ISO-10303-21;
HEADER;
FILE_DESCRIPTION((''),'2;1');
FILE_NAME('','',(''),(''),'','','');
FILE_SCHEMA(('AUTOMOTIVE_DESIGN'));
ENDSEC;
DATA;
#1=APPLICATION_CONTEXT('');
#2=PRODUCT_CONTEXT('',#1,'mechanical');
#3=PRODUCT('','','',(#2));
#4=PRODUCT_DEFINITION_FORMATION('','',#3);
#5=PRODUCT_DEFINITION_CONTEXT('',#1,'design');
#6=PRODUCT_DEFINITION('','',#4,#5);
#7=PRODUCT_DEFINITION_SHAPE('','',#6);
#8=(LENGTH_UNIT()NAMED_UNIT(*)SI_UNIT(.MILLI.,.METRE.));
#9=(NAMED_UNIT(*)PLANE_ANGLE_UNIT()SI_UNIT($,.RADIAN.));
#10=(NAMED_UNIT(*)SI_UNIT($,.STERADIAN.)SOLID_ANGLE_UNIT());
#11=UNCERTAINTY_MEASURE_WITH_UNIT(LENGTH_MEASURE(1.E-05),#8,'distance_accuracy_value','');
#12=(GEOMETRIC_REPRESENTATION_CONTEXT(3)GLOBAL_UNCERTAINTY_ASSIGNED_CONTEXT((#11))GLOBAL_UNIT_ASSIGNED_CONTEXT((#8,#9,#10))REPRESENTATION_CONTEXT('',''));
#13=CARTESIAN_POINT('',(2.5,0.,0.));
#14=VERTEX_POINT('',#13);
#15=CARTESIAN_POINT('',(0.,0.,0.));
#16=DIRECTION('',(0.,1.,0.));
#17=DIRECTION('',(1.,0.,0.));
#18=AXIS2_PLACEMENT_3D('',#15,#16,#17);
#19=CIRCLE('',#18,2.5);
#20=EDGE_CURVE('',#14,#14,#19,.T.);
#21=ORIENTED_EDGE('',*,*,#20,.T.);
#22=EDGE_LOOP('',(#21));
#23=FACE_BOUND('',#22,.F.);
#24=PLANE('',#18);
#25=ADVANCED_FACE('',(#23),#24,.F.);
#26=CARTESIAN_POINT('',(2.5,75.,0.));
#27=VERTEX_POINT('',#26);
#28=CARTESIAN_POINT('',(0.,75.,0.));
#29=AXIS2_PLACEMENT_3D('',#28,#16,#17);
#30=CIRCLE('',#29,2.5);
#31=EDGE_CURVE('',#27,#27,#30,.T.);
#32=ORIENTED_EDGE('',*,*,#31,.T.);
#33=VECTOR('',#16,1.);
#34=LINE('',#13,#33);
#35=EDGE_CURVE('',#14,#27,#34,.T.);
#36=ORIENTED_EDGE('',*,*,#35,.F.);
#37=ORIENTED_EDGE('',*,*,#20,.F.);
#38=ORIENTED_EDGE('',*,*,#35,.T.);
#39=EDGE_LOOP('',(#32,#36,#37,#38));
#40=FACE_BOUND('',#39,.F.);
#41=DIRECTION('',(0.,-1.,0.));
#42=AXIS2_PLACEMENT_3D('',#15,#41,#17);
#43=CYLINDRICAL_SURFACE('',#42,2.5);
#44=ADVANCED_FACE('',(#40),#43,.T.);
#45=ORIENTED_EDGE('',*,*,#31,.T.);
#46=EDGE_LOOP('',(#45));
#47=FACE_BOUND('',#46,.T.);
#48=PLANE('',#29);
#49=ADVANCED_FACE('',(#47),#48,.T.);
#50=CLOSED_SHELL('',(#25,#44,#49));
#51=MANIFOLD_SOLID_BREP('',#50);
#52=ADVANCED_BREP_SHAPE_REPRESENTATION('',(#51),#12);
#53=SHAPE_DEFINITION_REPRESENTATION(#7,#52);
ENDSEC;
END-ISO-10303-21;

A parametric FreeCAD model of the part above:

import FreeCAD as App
import Part
import Sketcher

V = App.Vector

doc = App.newDocument("Part")
body = doc.addObject("PartDesign::Body", "Body")

sketch1 = doc.addObject("Sketcher::SketchObject", "Sketch")
body.addObject(sketch1)
sketch1.AttachmentSupport = (doc.XZ_Plane, [""])
sketch1.MapMode = "FlatFace"
sketch1.addGeometry(Part.Circle(V(0, 0, 0), V(0, 0, 1), 2.5), False)
sketch1.addConstraint(Sketcher.Constraint("Coincident", 0, 3, -1, 1))
sketch1.addConstraint(Sketcher.Constraint("Diameter", 0, 5.0))
pad1 = doc.addObject("PartDesign::Pad", "Pad")
body.addObject(pad1)
pad1.Profile = sketch1
pad1.Length = 75
pad1.Reversed = True

doc.recompute()
